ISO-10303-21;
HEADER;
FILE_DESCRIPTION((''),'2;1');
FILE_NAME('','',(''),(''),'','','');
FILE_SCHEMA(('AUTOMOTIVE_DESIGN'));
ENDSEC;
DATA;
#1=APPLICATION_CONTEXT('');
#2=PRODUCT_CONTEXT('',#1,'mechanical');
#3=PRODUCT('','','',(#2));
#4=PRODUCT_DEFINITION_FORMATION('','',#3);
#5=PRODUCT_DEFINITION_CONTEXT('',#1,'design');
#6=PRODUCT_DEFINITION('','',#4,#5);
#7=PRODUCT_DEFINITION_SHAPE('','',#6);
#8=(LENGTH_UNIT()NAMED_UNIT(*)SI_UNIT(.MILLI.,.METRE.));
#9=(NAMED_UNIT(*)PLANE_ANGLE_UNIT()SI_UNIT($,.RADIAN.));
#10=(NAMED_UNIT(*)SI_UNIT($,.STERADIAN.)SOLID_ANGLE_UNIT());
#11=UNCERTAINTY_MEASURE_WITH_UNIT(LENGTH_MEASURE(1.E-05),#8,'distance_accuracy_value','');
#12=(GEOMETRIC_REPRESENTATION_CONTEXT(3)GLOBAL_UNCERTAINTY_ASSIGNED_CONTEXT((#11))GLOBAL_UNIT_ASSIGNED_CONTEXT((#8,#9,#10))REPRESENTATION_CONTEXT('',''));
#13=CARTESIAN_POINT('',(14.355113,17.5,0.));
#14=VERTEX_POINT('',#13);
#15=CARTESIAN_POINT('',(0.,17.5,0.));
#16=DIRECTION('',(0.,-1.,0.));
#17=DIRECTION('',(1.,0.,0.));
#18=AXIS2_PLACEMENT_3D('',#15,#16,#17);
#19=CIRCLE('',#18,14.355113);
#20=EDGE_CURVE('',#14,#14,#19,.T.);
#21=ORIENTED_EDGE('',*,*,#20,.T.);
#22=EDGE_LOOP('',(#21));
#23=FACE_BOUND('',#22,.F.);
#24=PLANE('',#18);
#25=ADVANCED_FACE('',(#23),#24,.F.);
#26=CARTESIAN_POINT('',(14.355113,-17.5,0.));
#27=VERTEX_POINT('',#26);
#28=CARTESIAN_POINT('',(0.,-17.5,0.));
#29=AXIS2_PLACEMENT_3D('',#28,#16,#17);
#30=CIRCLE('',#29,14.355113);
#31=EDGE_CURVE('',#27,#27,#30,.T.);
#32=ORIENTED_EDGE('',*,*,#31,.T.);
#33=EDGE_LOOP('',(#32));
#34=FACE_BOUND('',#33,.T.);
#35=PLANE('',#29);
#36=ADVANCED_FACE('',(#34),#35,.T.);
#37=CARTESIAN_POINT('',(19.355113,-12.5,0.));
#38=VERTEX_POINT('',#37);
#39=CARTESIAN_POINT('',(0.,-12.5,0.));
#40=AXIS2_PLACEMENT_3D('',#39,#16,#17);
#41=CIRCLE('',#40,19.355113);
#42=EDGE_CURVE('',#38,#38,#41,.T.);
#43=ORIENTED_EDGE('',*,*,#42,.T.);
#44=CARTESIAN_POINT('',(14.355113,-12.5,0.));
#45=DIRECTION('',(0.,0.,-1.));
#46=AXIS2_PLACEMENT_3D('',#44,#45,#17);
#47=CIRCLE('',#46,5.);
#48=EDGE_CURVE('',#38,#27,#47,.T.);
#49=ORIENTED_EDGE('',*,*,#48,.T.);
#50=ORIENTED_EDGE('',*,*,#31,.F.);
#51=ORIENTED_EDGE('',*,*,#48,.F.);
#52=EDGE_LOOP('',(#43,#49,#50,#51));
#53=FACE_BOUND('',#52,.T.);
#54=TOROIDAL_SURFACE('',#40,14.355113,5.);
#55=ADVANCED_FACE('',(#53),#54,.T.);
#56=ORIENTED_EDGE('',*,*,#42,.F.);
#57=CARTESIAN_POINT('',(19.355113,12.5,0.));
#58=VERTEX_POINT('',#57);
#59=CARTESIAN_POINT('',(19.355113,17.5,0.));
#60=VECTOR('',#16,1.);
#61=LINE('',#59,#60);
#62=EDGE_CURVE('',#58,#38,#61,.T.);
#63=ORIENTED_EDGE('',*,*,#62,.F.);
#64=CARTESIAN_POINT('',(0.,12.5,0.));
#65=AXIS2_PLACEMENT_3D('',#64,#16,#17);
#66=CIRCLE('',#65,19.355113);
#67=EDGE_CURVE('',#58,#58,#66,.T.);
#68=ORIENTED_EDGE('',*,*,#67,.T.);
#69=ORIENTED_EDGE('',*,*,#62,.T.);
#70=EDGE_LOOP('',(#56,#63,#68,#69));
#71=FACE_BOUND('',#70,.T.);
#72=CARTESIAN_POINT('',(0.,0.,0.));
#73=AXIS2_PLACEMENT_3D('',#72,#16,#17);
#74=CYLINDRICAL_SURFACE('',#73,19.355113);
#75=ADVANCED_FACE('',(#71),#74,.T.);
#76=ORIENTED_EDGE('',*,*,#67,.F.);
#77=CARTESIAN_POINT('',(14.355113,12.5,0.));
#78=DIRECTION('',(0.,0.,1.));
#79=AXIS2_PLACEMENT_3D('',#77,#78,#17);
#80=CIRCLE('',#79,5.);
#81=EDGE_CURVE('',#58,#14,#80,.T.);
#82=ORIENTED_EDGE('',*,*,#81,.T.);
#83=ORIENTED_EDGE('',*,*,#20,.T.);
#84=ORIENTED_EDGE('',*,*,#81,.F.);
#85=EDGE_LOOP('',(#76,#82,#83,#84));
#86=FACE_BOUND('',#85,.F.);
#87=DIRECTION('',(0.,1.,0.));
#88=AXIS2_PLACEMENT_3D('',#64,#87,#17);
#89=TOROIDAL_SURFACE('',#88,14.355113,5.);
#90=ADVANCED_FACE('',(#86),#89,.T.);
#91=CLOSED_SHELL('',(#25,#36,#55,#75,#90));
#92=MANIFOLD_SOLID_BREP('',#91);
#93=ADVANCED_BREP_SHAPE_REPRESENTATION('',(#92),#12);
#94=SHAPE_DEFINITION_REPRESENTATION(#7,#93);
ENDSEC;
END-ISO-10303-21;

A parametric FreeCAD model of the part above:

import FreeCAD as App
import Part
import Sketcher
Q = App.Units.Quantity


def edges_at(feature, points):
    """Names of the edges that pass closest to the given points."""
    edges = feature.Shape.Edges
    near = lambda p: min(range(len(edges)), key=lambda i: edges[i].distToShape(Part.Vertex(*p))[0])
    return sorted({f"Edge{near(p) + 1}" for p in points})

doc = App.newDocument("Part")
body = doc.addObject("PartDesign::Body", "Body")

# Sketch on XZ plane
sketch1 = body.newObject("Sketcher::SketchObject", "Sketch")
sketch1.AttachmentSupport = (doc.getObject("XZ_Plane"), [""])
sketch1.MapMode = "FlatFace"
sketch1.addGeometry(Part.Circle(App.Vector(0, 0, 0), App.Vector(0, 0, 1), 19.355113), False)
sketch1.addConstraint([
    Sketcher.Constraint("Coincident", 0, 3, -1, 1),
    Sketcher.Constraint("Diameter", 0, Q("38.710226 mm")),
])
pad1 = body.newObject("PartDesign::Pad", "Pad")
pad1.Profile = sketch1
pad1.Length = 35
pad1.Midplane = True
doc.recompute()

fillet = body.newObject("PartDesign::Fillet", "Fillet")
fillet.Base = (pad1, edges_at(pad1, [(-19.355, -17.5, 0)]))
fillet.Radius = 5
doc.recompute()

fillet2 = body.newObject("PartDesign::Fillet", "Fillet001")
fillet2.Base = (fillet, edges_at(fillet, [(-19.355, 17.5, 0)]))
fillet2.Radius = 5

doc.recompute()
